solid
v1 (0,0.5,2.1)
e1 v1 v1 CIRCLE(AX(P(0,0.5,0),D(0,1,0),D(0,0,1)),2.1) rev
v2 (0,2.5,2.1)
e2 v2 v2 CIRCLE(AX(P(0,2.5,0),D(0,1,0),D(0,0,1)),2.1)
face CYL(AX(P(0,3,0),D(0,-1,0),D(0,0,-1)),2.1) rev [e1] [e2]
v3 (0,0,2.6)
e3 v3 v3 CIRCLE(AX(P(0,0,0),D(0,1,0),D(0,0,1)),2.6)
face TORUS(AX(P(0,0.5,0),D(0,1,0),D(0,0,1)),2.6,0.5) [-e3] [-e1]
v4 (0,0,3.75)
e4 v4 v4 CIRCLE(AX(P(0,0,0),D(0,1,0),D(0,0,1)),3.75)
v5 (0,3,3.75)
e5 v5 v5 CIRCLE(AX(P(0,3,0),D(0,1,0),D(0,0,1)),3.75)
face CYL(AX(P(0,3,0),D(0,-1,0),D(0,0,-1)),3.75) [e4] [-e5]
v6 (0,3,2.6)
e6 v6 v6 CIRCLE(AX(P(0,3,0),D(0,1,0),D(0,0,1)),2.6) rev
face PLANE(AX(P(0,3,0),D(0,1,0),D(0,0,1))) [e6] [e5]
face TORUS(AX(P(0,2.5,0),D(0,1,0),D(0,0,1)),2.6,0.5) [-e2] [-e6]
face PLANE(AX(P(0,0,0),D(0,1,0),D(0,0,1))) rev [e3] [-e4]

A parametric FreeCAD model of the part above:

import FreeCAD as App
import Part
import Sketcher


def edges_at(feature, points):
    """Names of the edges that pass closest to the given points."""
    edges = feature.Shape.Edges
    near = lambda p: min(range(len(edges)), key=lambda i: edges[i].distToShape(Part.Vertex(*p))[0])
    return sorted({f"Edge{near(p) + 1}" for p in points})

doc = App.newDocument("Part")
body = doc.addObject("PartDesign::Body", "Body")

# Sketch on XZ plane
sketch1 = doc.addObject("Sketcher::SketchObject", "Sketch")
body.addObject(sketch1)
sketch1.AttachmentSupport = (doc.XZ_Plane, [""])
sketch1.MapMode = "FlatFace"
sketch1.addGeometry([
    Part.Circle(App.Vector(0, 0, 0), App.Vector(0, 0, 1), 3.75),
    Part.Circle(App.Vector(0, 0, 0), App.Vector(0, 0, 1), 2.1),
], False)
sketch1.addConstraint([
    Sketcher.Constraint("Coincident", 0, 3, -1, 1),
    Sketcher.Constraint("Coincident", 1, 3, -1, 1),
    Sketcher.Constraint("Diameter", 0, 7.5),
    Sketcher.Constraint("Diameter", 1, 4.2),
])
pad1 = doc.addObject("PartDesign::Pad", "Pad")
body.addObject(pad1)
pad1.Profile = sketch1
pad1.Length = 3
pad1.Reversed = True
doc.recompute()

fillet = doc.addObject("PartDesign::Fillet", "Fillet")
body.addObject(fillet)
fillet.Base = (pad1, edges_at(pad1, [(0, 0, -2.1), (0, 3, -2.1)]))
fillet.Radius = 0.5

doc.recompute()
